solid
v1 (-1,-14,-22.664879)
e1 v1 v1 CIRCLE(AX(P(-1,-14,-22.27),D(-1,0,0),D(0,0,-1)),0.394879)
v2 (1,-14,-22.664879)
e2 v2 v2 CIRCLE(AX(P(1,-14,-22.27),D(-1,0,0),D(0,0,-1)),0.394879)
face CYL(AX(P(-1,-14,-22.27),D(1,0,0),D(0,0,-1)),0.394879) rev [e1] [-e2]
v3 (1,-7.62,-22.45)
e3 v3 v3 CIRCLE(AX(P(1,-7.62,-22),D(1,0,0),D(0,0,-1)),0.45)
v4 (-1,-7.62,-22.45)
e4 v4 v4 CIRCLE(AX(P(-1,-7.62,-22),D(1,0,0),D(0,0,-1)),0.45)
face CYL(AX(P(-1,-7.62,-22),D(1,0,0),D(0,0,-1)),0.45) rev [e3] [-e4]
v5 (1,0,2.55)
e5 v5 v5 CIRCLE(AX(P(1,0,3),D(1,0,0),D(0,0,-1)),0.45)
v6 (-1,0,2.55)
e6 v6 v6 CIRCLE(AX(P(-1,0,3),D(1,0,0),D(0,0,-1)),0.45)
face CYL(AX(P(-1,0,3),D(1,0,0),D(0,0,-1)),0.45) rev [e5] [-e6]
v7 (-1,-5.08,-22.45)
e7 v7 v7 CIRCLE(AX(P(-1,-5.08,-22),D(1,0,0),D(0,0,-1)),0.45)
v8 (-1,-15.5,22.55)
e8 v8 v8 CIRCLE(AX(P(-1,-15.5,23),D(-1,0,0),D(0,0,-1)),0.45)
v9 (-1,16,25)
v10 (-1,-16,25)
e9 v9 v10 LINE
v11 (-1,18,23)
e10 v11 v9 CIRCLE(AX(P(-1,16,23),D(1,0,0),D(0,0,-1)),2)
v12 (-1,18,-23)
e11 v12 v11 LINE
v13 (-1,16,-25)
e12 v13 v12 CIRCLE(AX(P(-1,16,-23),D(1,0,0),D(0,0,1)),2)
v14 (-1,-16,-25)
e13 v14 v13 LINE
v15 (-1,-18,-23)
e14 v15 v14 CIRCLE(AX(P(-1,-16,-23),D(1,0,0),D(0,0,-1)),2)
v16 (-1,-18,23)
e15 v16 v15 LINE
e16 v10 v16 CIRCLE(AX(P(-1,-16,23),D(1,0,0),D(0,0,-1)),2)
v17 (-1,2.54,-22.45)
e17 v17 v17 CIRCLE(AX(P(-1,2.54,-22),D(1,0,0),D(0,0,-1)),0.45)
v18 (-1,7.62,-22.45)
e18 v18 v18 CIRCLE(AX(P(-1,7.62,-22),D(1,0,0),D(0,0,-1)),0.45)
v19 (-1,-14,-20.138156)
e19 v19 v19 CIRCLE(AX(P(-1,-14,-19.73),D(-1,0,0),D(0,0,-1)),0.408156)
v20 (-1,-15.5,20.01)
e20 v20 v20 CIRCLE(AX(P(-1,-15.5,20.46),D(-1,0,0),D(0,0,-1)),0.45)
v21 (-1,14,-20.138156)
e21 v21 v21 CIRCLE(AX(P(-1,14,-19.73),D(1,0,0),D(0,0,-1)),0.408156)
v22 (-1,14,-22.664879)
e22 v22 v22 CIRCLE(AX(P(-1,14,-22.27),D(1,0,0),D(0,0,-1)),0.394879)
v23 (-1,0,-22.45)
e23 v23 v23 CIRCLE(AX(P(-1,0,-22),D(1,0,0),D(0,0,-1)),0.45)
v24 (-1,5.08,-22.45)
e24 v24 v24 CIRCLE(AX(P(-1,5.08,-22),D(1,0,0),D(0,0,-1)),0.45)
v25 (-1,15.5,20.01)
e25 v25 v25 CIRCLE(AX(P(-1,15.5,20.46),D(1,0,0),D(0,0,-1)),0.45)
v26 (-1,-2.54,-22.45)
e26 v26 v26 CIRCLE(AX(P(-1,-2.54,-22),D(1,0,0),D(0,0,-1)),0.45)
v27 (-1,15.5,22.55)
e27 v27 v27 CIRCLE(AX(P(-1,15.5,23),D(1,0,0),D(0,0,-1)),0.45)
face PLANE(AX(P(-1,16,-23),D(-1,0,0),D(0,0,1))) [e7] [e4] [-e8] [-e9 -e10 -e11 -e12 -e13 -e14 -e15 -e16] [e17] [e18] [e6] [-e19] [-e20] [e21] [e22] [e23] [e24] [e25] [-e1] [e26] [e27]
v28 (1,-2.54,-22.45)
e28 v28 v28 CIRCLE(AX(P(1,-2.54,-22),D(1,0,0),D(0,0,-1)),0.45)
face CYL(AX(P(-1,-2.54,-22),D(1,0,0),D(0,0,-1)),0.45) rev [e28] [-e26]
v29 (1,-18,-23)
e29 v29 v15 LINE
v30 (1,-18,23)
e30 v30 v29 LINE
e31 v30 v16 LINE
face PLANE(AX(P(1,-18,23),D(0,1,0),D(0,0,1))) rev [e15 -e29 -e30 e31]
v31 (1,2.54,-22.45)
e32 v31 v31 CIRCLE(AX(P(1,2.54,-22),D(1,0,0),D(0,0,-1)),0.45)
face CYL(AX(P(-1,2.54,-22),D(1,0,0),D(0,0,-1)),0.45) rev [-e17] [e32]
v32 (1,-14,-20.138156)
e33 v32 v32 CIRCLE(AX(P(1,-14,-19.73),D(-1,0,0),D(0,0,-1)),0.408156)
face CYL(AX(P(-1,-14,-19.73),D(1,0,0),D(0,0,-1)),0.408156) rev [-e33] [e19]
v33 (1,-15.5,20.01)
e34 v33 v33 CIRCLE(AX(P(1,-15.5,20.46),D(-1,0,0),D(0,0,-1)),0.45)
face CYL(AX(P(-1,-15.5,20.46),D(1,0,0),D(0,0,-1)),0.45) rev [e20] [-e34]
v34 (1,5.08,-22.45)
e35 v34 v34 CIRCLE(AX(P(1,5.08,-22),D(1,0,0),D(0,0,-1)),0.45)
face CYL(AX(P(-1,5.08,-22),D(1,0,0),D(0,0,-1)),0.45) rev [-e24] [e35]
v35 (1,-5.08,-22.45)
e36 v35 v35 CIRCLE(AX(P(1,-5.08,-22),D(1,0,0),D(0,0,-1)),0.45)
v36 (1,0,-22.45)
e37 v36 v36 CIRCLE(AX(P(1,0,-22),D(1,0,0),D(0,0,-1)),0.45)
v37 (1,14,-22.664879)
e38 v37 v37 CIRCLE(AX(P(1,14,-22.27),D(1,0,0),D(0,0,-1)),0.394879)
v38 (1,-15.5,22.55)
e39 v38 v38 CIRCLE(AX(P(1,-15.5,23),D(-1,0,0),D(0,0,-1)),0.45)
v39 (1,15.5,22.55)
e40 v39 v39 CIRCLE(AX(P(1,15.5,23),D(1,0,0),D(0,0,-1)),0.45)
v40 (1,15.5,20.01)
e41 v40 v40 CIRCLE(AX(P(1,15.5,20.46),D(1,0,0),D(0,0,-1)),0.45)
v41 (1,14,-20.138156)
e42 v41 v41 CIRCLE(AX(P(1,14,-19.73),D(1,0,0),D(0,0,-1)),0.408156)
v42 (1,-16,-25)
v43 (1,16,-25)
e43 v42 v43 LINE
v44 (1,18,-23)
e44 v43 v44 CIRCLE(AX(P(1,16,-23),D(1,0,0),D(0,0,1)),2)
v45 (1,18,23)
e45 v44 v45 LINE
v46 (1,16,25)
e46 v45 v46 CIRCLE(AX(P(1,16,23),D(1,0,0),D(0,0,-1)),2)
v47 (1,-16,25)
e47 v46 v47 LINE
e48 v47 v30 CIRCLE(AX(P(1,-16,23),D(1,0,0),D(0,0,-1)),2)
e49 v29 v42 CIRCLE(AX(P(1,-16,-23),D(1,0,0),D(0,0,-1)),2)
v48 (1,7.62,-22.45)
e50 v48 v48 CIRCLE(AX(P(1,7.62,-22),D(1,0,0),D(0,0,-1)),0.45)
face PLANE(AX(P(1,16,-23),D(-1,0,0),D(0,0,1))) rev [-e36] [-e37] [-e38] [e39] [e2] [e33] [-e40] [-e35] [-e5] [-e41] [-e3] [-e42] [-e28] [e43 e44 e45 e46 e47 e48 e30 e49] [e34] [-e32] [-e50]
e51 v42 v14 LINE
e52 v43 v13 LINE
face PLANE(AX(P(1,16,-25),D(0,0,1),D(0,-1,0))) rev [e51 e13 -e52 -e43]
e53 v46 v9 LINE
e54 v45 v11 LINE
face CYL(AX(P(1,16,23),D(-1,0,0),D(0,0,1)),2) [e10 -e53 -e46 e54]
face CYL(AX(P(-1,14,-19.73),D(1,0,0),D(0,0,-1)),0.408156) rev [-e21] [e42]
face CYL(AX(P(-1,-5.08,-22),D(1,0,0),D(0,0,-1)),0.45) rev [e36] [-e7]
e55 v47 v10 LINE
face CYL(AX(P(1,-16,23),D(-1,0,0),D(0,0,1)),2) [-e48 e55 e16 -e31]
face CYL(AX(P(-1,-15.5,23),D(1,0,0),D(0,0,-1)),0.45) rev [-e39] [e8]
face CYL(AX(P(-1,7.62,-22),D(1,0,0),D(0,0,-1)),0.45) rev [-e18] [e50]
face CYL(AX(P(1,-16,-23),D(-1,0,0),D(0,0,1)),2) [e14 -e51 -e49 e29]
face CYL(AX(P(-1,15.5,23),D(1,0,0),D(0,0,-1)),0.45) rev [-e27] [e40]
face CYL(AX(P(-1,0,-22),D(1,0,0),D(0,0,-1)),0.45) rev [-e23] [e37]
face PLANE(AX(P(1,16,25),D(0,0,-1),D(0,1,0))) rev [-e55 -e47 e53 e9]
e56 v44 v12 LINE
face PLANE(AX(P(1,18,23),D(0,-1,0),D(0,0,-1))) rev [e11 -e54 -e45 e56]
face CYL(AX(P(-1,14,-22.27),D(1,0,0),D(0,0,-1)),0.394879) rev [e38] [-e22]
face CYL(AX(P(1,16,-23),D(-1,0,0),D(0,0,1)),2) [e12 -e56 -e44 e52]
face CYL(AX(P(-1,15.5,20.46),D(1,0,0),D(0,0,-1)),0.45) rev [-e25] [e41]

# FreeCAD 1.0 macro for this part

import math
import FreeCAD as App
import Part
import Sketcher

doc = App.newDocument("Part")
body = doc.addObject("PartDesign::Body", "Body")

sketch1 = doc.addObject("Sketcher::SketchObject", "Sketch")
body.addObject(sketch1)
sketch1.AttachmentSupport = (doc.YZ_Plane, [""])
sketch1.MapMode = "FlatFace"
sketch1.addGeometry(Part.LineSegment(App.Vector(18, -23, 0), App.Vector(18, 23, 0)), False)
sketch1.addGeometry(Part.ArcOfCircle(Part.Circle(App.Vector(16, 23, 0), App.Vector(0, 0, 1), 2), math.radians(0), math.radians(90)), False)
sketch1.addGeometry(Part.LineSegment(App.Vector(16, 25, 0), App.Vector(-16, 25, 0)), False)
sketch1.addGeometry(Part.ArcOfCircle(Part.Circle(App.Vector(-16, 23, 0), App.Vector(0, 0, 1), 2), math.radians(90), math.radians(180)), False)
sketch1.addGeometry(Part.LineSegment(App.Vector(-18, 23, 0), App.Vector(-18, -23, 0)), False)
sketch1.addGeometry(Part.ArcOfCircle(Part.Circle(App.Vector(-16, -23, 0), App.Vector(0, 0, 1), 2), math.radians(-180), math.radians(-90)), False)
sketch1.addGeometry(Part.LineSegment(App.Vector(-16, -25, 0), App.Vector(16, -25, 0)), False)
sketch1.addGeometry(Part.ArcOfCircle(Part.Circle(App.Vector(16, -23, 0), App.Vector(0, 0, 1), 2), math.radians(-90), math.radians(0)), False)
sketch1.addConstraint(Sketcher.Constraint("Tangent", 0, 2, 1, 1))
sketch1.addConstraint(Sketcher.Constraint("Tangent", 1, 2, 2, 1))
sketch1.addConstraint(Sketcher.Constraint("Tangent", 2, 2, 3, 1))
sketch1.addConstraint(Sketcher.Constraint("Tangent", 3, 2, 4, 1))
sketch1.addConstraint(Sketcher.Constraint("Tangent", 4, 2, 5, 1))
sketch1.addConstraint(Sketcher.Constraint("Tangent", 5, 2, 6, 1))
sketch1.addConstraint(Sketcher.Constraint("Tangent", 6, 2, 7, 1))
sketch1.addConstraint(Sketcher.Constraint("Tangent", 7, 2, 0, 1))
sketch1.addConstraint(Sketcher.Constraint("Vertical", 0))
sketch1.addConstraint(Sketcher.Constraint("Horizontal", 2))
sketch1.addConstraint(Sketcher.Constraint("Vertical", 4))
sketch1.addConstraint(Sketcher.Constraint("Horizontal", 6))
sketch1.addConstraint(Sketcher.Constraint("Equal", 1, 3))
sketch1.addConstraint(Sketcher.Constraint("Equal", 3, 5))
sketch1.addConstraint(Sketcher.Constraint("Equal", 5, 7))
sketch1.addConstraint(Sketcher.Constraint("Symmetric", 1, 3, 5, 3, -1, 1))
sketch1.addConstraint(Sketcher.Constraint("Radius", 1, 2.0))
sketch1.addConstraint(Sketcher.Constraint("DistanceX", 2, 2, 2, 1, 32.0))
sketch1.addConstraint(Sketcher.Constraint("DistanceY", 0, 1, 0, 2, 46.0))
pad1 = doc.addObject("PartDesign::Pad", "Pad")
body.addObject(pad1)
pad1.Profile = sketch1
pad1.Length = 2
pad1.Midplane = True

sketch2 = doc.addObject("Sketcher::SketchObject", "Sketch001")
body.addObject(sketch2)
sketch2.AttachmentSupport = (doc.YZ_Plane, [""])
sketch2.MapMode = "FlatFace"
sketch2.AttachmentOffset = App.Placement(App.Vector(0, 0, 1), App.Rotation())
sketch2.addGeometry(Part.Circle(App.Vector(15.5, 23, 0), App.Vector(0, 0, 1), 0.45), False)
sketch2.addGeometry(Part.Circle(App.Vector(15.5, 20.46, 0), App.Vector(0, 0, 1), 0.45), False)
sketch2.addConstraint(Sketcher.Constraint("Equal", 0, 1))
sketch2.addConstraint(Sketcher.Constraint("Vertical", 0, 3, 1, 3))
sketch2.addConstraint(Sketcher.Constraint("Diameter", 0, 0.9))
sketch2.addConstraint(Sketcher.Constraint("DistanceY", -1, 1, 0, 3, 23.0))
sketch2.addConstraint(Sketcher.Constraint("DistanceX", -1, 1, 0, 3, 15.5))
sketch2.addConstraint(Sketcher.Constraint("DistanceY", -1, 1, 1, 3, 20.46))
pocket1 = doc.addObject("PartDesign::Pocket", "Pocket")
body.addObject(pocket1)
pocket1.Profile = sketch2
pocket1.Length = 2
doc.recompute()

mirrored = doc.addObject("PartDesign::Mirrored", "Mirrored")
body.addObject(mirrored)
mirrored.Originals = [pocket1]
mirrored.MirrorPlane = (doc.XZ_Plane, [""])
body.Tip = mirrored

sketch3 = doc.addObject("Sketcher::SketchObject", "Sketch002")
body.addObject(sketch3)
sketch3.AttachmentSupport = (doc.YZ_Plane, [""])
sketch3.MapMode = "FlatFace"
sketch3.AttachmentOffset = App.Placement(App.Vector(0, 0, 1), App.Rotation())
sketch3.addGeometry(Part.Circle(App.Vector(7.62, -22, 0), App.Vector(0, 0, 1), 0.45), False)
sketch3.addConstraint(Sketcher.Constraint("Diameter", 0, 0.9))
sketch3.addConstraint(Sketcher.Constraint("DistanceY", 0, 3, -1, 1, 22.0))
sketch3.addConstraint(Sketcher.Constraint("DistanceX", -1, 1, 0, 3, 7.62))
pocket2 = doc.addObject("PartDesign::Pocket", "Pocket001")
body.addObject(pocket2)
pocket2.Profile = sketch3
pocket2.Length = 2
doc.recompute()

linearpattern = doc.addObject("PartDesign::LinearPattern", "LinearPattern")
body.addObject(linearpattern)
linearpattern.Originals = [pocket2]
linearpattern.Direction = (doc.Y_Axis, [""])
linearpattern.Mode = "offset"
linearpattern.Offset = 2.54
linearpattern.Occurrences = 7
linearpattern.Reversed = True
body.Tip = linearpattern

sketch4 = doc.addObject("Sketcher::SketchObject", "Sketch003")
body.addObject(sketch4)
sketch4.AttachmentSupport = (doc.YZ_Plane, [""])
sketch4.MapMode = "FlatFace"
sketch4.AttachmentOffset = App.Placement(App.Vector(0, 0, 1), App.Rotation())
sketch4.addGeometry(Part.Circle(App.Vector(0, 3, 0), App.Vector(0, 0, 1), 0.45), False)
sketch4.addConstraint(Sketcher.Constraint("PointOnObject", 0, 3, -2))
sketch4.addConstraint(Sketcher.Constraint("Diameter", 0, 0.9))
sketch4.addConstraint(Sketcher.Constraint("DistanceY", -1, 1, 0, 3, 3.0))
pocket3 = doc.addObject("PartDesign::Pocket", "Pocket002")
body.addObject(pocket3)
pocket3.Profile = sketch4
pocket3.Length = 2

sketch5 = doc.addObject("Sketcher::SketchObject", "Sketch004")
body.addObject(sketch5)
sketch5.AttachmentSupport = (doc.YZ_Plane, [""])
sketch5.MapMode = "FlatFace"
sketch5.AttachmentOffset = App.Placement(App.Vector(0, 0, 1), App.Rotation())
sketch5.addGeometry(Part.Circle(App.Vector(14, -22.27, 0), App.Vector(0, 0, 1), 0.39), False)
sketch5.addGeometry(Part.Circle(App.Vector(14, -19.73, 0), App.Vector(0, 0, 1), 0.41), False)
sketch5.addConstraint(Sketcher.Constraint("Vertical", 0, 3, 1, 3))
sketch5.addConstraint(Sketcher.Constraint("DistanceX", -1, 1, 0, 3, 14.0))
sketch5.addConstraint(Sketcher.Constraint("Diameter", 1, 0.816311))
sketch5.addConstraint(Sketcher.Constraint("DistanceY", 0, 3, -1, 1, 22.27))
sketch5.addConstraint(Sketcher.Constraint("DistanceY", 1, 3, -1, 1, 19.73))
sketch5.addConstraint(Sketcher.Constraint("Diameter", 0, 0.789757))
pocket4 = doc.addObject("PartDesign::Pocket", "Pocket003")
body.addObject(pocket4)
pocket4.Profile = sketch5
pocket4.Length = 2
doc.recompute()

mirrored2 = doc.addObject("PartDesign::Mirrored", "Mirrored001")
body.addObject(mirrored2)
mirrored2.Originals = [pocket4]
mirrored2.MirrorPlane = (doc.XZ_Plane, [""])
body.Tip = mirrored2

doc.recompute()
